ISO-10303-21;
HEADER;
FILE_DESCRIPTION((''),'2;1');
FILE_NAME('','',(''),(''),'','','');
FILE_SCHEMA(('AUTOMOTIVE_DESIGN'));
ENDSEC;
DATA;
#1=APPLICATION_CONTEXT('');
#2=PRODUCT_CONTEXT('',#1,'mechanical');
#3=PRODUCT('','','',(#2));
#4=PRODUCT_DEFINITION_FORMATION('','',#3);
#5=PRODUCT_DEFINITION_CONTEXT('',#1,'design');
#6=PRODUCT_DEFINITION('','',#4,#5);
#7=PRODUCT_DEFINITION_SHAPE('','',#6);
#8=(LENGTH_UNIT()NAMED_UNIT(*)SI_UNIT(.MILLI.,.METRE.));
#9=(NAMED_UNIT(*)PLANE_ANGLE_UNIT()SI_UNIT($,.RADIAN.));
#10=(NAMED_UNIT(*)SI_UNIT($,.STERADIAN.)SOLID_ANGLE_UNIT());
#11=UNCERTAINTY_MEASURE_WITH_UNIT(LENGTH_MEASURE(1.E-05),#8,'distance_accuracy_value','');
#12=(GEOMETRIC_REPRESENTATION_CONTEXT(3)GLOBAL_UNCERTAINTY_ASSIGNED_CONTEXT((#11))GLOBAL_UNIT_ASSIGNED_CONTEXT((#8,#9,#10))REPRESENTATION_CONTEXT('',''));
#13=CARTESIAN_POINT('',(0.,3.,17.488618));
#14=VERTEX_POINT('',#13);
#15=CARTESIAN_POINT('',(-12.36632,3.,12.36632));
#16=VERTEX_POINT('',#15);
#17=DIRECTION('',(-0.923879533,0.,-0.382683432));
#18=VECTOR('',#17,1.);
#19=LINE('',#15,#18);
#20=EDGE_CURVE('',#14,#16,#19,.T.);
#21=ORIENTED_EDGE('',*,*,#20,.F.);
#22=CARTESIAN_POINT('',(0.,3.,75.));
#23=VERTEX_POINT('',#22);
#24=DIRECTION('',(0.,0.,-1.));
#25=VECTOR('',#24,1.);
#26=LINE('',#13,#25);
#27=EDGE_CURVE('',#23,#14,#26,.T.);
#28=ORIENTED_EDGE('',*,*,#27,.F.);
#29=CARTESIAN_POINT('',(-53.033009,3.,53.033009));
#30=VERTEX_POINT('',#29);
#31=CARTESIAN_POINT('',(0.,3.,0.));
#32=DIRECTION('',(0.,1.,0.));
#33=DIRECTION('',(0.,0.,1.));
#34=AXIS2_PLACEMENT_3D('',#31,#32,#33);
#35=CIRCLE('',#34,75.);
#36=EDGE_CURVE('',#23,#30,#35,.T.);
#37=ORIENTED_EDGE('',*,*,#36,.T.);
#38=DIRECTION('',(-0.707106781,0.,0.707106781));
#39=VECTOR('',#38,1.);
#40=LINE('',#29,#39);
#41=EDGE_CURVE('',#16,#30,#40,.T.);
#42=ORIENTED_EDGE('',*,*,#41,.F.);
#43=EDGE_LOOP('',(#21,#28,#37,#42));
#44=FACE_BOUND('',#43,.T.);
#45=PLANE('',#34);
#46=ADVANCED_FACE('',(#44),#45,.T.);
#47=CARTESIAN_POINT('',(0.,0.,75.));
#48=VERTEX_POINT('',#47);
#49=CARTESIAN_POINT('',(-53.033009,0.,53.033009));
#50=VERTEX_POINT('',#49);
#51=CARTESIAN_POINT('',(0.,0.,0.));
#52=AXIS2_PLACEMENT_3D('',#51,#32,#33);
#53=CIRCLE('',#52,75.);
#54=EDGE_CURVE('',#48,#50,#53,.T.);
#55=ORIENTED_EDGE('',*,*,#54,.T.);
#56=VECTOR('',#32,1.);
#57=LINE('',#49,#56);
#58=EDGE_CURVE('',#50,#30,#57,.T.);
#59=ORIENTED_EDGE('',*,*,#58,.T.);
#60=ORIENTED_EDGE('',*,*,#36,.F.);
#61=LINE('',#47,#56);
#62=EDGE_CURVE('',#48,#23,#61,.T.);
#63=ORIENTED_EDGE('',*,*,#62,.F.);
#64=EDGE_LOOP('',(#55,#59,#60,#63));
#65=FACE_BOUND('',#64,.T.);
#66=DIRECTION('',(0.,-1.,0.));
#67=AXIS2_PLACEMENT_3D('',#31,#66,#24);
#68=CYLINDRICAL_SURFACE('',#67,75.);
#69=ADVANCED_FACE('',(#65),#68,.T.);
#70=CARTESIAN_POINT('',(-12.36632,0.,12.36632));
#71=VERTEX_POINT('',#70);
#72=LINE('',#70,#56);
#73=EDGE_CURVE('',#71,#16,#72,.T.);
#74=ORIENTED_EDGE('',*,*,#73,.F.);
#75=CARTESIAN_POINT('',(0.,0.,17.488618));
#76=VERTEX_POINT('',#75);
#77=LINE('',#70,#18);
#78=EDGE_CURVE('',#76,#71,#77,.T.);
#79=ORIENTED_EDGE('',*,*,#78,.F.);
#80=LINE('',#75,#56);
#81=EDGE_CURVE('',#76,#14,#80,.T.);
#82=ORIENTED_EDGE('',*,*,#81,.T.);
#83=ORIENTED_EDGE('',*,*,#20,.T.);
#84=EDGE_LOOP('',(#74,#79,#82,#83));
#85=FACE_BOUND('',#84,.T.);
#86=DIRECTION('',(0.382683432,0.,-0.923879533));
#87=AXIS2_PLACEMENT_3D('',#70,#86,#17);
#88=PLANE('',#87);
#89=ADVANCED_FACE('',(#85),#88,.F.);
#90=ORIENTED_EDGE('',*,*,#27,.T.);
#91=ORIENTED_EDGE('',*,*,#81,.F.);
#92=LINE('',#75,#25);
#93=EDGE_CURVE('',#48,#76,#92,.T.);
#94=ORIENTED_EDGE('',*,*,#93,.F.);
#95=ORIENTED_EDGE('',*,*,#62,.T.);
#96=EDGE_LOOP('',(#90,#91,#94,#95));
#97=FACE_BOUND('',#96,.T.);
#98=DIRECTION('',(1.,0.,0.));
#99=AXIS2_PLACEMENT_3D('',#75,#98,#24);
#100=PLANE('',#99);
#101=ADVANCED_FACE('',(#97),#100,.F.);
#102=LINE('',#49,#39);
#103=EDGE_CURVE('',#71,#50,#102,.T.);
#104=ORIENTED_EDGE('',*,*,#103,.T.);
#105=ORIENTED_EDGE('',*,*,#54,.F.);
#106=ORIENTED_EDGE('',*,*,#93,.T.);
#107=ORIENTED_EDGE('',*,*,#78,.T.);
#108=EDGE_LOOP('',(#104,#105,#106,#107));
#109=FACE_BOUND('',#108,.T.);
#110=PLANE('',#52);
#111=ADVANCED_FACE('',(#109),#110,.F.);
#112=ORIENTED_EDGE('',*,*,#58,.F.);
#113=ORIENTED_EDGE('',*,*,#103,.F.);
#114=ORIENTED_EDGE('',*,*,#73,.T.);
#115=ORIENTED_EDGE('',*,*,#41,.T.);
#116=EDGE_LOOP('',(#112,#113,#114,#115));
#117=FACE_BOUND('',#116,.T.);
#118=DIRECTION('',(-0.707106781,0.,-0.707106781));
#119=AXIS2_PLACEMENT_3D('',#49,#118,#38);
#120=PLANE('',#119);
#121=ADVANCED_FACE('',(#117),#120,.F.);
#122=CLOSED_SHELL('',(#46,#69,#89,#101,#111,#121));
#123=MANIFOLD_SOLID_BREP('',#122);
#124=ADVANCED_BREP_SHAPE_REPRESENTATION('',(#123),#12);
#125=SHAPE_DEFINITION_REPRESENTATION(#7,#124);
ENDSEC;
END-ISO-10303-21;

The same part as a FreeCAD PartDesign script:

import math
import FreeCAD as App
import Part
import Sketcher
Q = App.Units.Quantity

doc = App.newDocument("Part")
params = doc.addObject("Spreadsheet::Sheet", "Params")
for row, (alias, value) in enumerate([
    ("sketch1_diameter", "150 mm"),
    ("pad1_length", "3 mm"),
    ("sketch2_radius", "75 mm"),
    ("pocket1_length", "3 mm"),
], start=1):
    params.set(f"A{row}", alias)
    params.set(f"B{row}", "=" + value)
    params.setAlias(f"B{row}", alias)

body = doc.addObject("PartDesign::Body", "Body")

sketch1 = doc.addObject("Sketcher::SketchObject", "Sketch")
body.addObject(sketch1)
sketch1.AttachmentSupport = (doc.XZ_Plane, [""])
sketch1.MapMode = "FlatFace"
sketch1.addGeometry(Part.Circle(App.Vector(0, 0, 0), App.Vector(0, 0, 1), 75), False)
sketch1.addConstraint([
    Sketcher.Constraint("Coincident", 0, 3, -1, 1),
    Sketcher.Constraint("Diameter", 0, 150.0),
])
sketch1.setExpression("Constraints[1]", "Params.sketch1_diameter")
pad1 = doc.addObject("PartDesign::Pad", "Pad")
body.addObject(pad1)
pad1.Profile = sketch1
pad1.setExpression("Length", "Params.pad1_length")
pad1.Reversed = True

sketch2 = doc.addObject("Sketcher::SketchObject", "Sketch001")
body.addObject(sketch2)
sketch2.AttachmentSupport = (doc.XZ_Plane, [""])
sketch2.MapMode = "FlatFace"
sketch2.addGeometry([
    Part.LineSegment(App.Vector(-12, 12, 0), App.Vector(-53, 53, 0)),
    Part.ArcOfCircle(Part.Circle(App.Vector(0, 0, 0), App.Vector(0, 0, 1), 75), math.radians(90), math.radians(135)),
    Part.LineSegment(App.Vector(0, 75, 0), App.Vector(0, 17, 0)),
    Part.LineSegment(App.Vector(0, 17, 0), App.Vector(-12, 12, 0)),
], False)
sketch2.addConstraint([
    Sketcher.Constraint("Coincident", 0, 2, 1, 2),
    Sketcher.Constraint("Coincident", 1, 1, 2, 1),
    Sketcher.Constraint("Coincident", 2, 2, 3, 1),
    Sketcher.Constraint("Coincident", 3, 2, 0, 1),
    Sketcher.Constraint("Vertical", 2),
    Sketcher.Constraint("Coincident", 1, 3, -1, 1),
    Sketcher.Constraint("PointOnObject", 1, 1, -2),
    Sketcher.Constraint("Radius", 1, 75.0),
    Sketcher.Constraint("Angle", 0, Q("135 deg")),
    Sketcher.Constraint("Angle", 3, Q("-157.5 deg")),
    Sketcher.Constraint("DistanceY", 2, 2, 2, 1, 57.511382),
    Sketcher.Constraint("Distance", 0, 57.511382),
])
sketch2.setExpression("Constraints[7]", "Params.sketch2_radius")
pocket1 = doc.addObject("PartDesign::Pocket", "Pocket")
body.addObject(pocket1)
pocket1.Profile = sketch2
pocket1.setExpression("Length", "Params.pocket1_length")

doc.recompute()
